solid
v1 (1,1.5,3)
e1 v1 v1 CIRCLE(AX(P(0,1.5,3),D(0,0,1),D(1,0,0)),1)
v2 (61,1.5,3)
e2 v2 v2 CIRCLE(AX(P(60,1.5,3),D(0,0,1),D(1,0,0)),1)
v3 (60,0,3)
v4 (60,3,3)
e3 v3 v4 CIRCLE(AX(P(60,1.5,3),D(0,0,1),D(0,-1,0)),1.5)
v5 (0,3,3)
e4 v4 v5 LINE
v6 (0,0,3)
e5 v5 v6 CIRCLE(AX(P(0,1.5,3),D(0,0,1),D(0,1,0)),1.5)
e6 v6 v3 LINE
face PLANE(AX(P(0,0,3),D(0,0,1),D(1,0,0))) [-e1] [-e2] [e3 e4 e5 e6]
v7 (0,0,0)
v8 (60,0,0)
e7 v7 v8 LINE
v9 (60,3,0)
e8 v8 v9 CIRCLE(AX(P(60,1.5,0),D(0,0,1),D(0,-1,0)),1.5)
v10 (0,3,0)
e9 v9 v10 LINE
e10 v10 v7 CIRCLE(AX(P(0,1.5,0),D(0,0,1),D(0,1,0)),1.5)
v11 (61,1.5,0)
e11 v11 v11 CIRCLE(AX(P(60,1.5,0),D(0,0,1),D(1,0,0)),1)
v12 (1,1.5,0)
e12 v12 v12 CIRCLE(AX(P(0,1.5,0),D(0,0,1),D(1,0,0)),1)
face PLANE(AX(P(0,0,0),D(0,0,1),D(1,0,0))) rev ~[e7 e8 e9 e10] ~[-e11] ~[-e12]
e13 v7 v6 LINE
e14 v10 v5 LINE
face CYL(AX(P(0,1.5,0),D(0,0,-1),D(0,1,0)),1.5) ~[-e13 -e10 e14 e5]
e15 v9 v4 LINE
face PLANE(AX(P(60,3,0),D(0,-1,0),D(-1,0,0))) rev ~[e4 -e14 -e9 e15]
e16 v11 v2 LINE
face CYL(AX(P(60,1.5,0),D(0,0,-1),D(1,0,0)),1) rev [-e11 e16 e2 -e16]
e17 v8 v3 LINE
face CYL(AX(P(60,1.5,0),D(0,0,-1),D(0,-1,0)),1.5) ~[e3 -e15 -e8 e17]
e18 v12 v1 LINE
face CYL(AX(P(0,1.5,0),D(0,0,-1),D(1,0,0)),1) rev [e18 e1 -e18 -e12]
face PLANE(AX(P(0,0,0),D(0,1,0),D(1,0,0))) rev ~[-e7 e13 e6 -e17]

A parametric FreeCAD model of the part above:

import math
import FreeCAD as App
import Part
import Sketcher
from FreeCAD import Vector

doc = App.newDocument("Part")
params = doc.addObject("Spreadsheet::Sheet", "Params")
for row, (alias, value) in enumerate([
    ("sketch1_diameter", "2 mm"),
    ("sketch1_width", "60 mm"),
    ("sketch1_radius", "1.5 mm"),
    ("pad1_length", "3 mm"),
], start=1):
    params.set(f"A{row}", alias)
    params.set(f"B{row}", "=" + value)
    params.setAlias(f"B{row}", alias)

body = doc.addObject("PartDesign::Body", "Body")

# Sketch on XY plane
sketch1 = body.newObject("Sketcher::SketchObject", "Sketch")
sketch1.AttachmentSupport = (doc.getObject("XY_Plane"), [""])
sketch1.MapMode = "FlatFace"
sketch1.addGeometry(Part.ArcOfCircle(Part.Circle(Vector(0, 1.5, 0), Vector(0, 0, 1), 1.5), math.radians(90), math.radians(270)), False)
sketch1.addGeometry(Part.LineSegment(Vector(0, 0, 0), Vector(60, 0, 0)), False)
sketch1.addGeometry(Part.ArcOfCircle(Part.Circle(Vector(60, 1.5, 0), Vector(0, 0, 1), 1.5), math.radians(-90), math.radians(90)), False)
sketch1.addGeometry(Part.LineSegment(Vector(60, 3, 0), Vector(0, 3, 0)), False)
sketch1.addGeometry(Part.Circle(Vector(0, 1.5, 0), Vector(0, 0, 1), 1), False)
sketch1.addGeometry(Part.Circle(Vector(60, 1.5, 0), Vector(0, 0, 1), 1), False)
sketch1.addConstraint(Sketcher.Constraint("Tangent", 0, 2, 1, 1))
sketch1.addConstraint(Sketcher.Constraint("Tangent", 1, 2, 2, 1))
sketch1.addConstraint(Sketcher.Constraint("Tangent", 2, 2, 3, 1))
sketch1.addConstraint(Sketcher.Constraint("Tangent", 3, 2, 0, 1))
sketch1.addConstraint(Sketcher.Constraint("Horizontal", 1))
sketch1.addConstraint(Sketcher.Constraint("Horizontal", 3))
sketch1.addConstraint(Sketcher.Constraint("Coincident", 0, 2, -1, 1))
sketch1.addConstraint(Sketcher.Constraint("Coincident", 4, 3, 0, 3))
sketch1.addConstraint(Sketcher.Constraint("Coincident", 5, 3, 2, 3))
sketch1.addConstraint(Sketcher.Constraint("Equal", 4, 5))
sketch1.addConstraint(Sketcher.Constraint("Diameter", 4, 2.0))
sketch1.addConstraint(Sketcher.Constraint("DistanceX", 1, 1, 1, 2, 60.0))
sketch1.addConstraint(Sketcher.Constraint("Radius", 0, 1.5))
sketch1.setExpression("Constraints[10]", "Params.sketch1_diameter")
sketch1.setExpression("Constraints[11]", "Params.sketch1_width")
sketch1.setExpression("Constraints[12]", "Params.sketch1_radius")
pad1 = body.newObject("PartDesign::Pad", "Pad")
pad1.Profile = sketch1
pad1.setExpression("Length", "Params.pad1_length")

doc.recompute()
